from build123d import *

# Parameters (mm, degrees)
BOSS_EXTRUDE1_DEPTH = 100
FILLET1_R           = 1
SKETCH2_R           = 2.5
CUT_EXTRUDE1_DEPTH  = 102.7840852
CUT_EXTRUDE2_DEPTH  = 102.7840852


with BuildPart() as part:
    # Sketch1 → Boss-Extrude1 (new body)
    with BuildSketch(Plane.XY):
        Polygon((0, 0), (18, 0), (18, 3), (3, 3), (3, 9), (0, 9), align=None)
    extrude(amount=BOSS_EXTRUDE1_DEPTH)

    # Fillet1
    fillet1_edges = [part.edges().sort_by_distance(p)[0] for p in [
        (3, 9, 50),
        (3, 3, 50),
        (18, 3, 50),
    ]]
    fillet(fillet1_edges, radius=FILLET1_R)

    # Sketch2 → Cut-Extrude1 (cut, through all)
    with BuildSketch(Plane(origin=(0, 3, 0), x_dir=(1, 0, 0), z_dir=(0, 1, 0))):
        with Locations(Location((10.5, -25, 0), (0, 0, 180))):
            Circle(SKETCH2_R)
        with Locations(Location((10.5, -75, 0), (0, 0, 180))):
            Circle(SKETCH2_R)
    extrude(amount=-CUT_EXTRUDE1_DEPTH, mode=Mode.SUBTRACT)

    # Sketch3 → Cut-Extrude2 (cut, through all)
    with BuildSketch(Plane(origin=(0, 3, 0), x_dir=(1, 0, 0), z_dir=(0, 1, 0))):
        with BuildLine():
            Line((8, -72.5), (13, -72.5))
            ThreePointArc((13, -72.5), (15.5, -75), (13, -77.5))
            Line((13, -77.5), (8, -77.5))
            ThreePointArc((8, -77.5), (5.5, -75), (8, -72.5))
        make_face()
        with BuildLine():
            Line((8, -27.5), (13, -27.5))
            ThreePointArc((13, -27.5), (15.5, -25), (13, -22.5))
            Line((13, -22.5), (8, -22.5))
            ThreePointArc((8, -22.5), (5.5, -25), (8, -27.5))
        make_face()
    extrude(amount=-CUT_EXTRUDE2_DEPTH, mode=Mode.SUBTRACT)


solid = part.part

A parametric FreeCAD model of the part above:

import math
import FreeCAD as App
import Part
import Sketcher

V = App.Vector


def edges_at(feature, points):
    """Names of the edges that pass closest to the given points."""
    edges = feature.Shape.Edges
    near = lambda p: min(range(len(edges)), key=lambda i: edges[i].distToShape(Part.Vertex(*p))[0])
    return sorted({f"Edge{near(p) + 1}" for p in points})

doc = App.newDocument("Part")
body = doc.addObject("PartDesign::Body", "Body")

# Sketch on XY plane
sketch1 = doc.addObject("Sketcher::SketchObject", "Sketch")
body.addObject(sketch1)
sketch1.AttachmentSupport = (doc.XY_Plane, [""])
sketch1.MapMode = "FlatFace"
sketch1.addGeometry([
    Part.LineSegment(V(0, 0, 0), V(18, 0, 0)),  # 0
    Part.LineSegment(V(18, 0, 0), V(18, 3, 0)),  # 1
    Part.LineSegment(V(18, 3, 0), V(3, 3, 0)),  # 2
    Part.LineSegment(V(3, 3, 0), V(3, 9, 0)),  # 3
    Part.LineSegment(V(3, 9, 0), V(0, 9, 0)),  # 4
    Part.LineSegment(V(0, 9, 0), V(0, 0, 0)),  # 5
], False)
sketch1.addConstraint([
    Sketcher.Constraint("Coincident", 0, 2, 1, 1),
    Sketcher.Constraint("Coincident", 1, 2, 2, 1),
    Sketcher.Constraint("Coincident", 2, 2, 3, 1),
    Sketcher.Constraint("Coincident", 3, 2, 4, 1),
    Sketcher.Constraint("Coincident", 4, 2, 5, 1),
    Sketcher.Constraint("Coincident", 5, 2, 0, 1),
    Sketcher.Constraint("Horizontal", 0),
    Sketcher.Constraint("Vertical", 1),
    Sketcher.Constraint("Horizontal", 2),
    Sketcher.Constraint("Vertical", 3),
    Sketcher.Constraint("Horizontal", 4),
    Sketcher.Constraint("Vertical", 5),
    Sketcher.Constraint("Coincident", 5, 2, -1, 1),
    Sketcher.Constraint("Equal", 4, 1),
    Sketcher.Constraint("DistanceX", 0, 1, 0, 2, 18.0),
    Sketcher.Constraint("DistanceX", 2, 2, 2, 1, 15.0),
    Sketcher.Constraint("DistanceY", 3, 1, 3, 2, 6.0),
])
pad1 = doc.addObject("PartDesign::Pad", "Pad")
body.addObject(pad1)
pad1.Profile = sketch1
pad1.Length = 100
doc.recompute()

fillet = doc.addObject("PartDesign::Fillet", "Fillet")
body.addObject(fillet)
fillet.Base = (pad1, edges_at(pad1, [(3, 9, 50), (3, 3, 50), (18, 3, 50)]))
fillet.Radius = 1

# Sketch on XZ plane
sketch2 = doc.addObject("Sketcher::SketchObject", "Sketch001")
body.addObject(sketch2)
sketch2.AttachmentSupport = (doc.XZ_Plane, [""])
sketch2.MapMode = "FlatFace"
sketch2.AttachmentOffset = App.Placement(V(0, 0, -3), App.Rotation())
sketch2.addGeometry([
    Part.Circle(V(10.5, 25, 0), V(0, 0, 1), 2.5),
    Part.Circle(V(10.5, 75, 0), V(0, 0, 1), 2.5),
], False)
sketch2.addConstraint([
    Sketcher.Constraint("Equal", 0, 1),
    Sketcher.Constraint("Vertical", 0, 3, 1, 3),
    Sketcher.Constraint("Diameter", 0, 5.0),
    Sketcher.Constraint("DistanceY", -1, 1, 0, 3, 25.0),
    Sketcher.Constraint("DistanceY", -1, 1, 1, 3, 75.0),
    Sketcher.Constraint("DistanceX", -1, 1, 0, 3, 10.5),
])
pocket1 = doc.addObject("PartDesign::Pocket", "Pocket")
body.addObject(pocket1)
pocket1.Profile = sketch2
pocket1.Type = "ThroughAll"
pocket1.Reversed = True

# Sketch on XZ plane
sketch3 = doc.addObject("Sketcher::SketchObject", "Sketch002")
body.addObject(sketch3)
sketch3.AttachmentSupport = (doc.XZ_Plane, [""])
sketch3.MapMode = "FlatFace"
sketch3.AttachmentOffset = App.Placement(V(0, 0, -3), App.Rotation())
sketch3.addGeometry([
    Part.LineSegment(V(13, 72.5, 0), V(8, 72.5, 0)),  # 0
    Part.ArcOfCircle(Part.Circle(V(8, 75, 0), V(0, 0, 1), 2.5), math.radians(90), math.radians(270)),  # 1
    Part.LineSegment(V(8, 77.5, 0), V(13, 77.5, 0)),  # 2
    Part.ArcOfCircle(Part.Circle(V(13, 75, 0), V(0, 0, 1), 2.5), math.radians(-90), math.radians(90)),  # 3
    Part.LineSegment(V(8, 27.5, 0), V(13, 27.5, 0)),  # 4
    Part.ArcOfCircle(Part.Circle(V(13, 25, 0), V(0, 0, 1), 2.5), math.radians(-90), math.radians(90)),  # 5
    Part.LineSegment(V(13, 22.5, 0), V(8, 22.5, 0)),  # 6
    Part.ArcOfCircle(Part.Circle(V(8, 25, 0), V(0, 0, 1), 2.5), math.radians(90), math.radians(270)),  # 7
], False)
sketch3.addConstraint([
    Sketcher.Constraint("Tangent", 0, 2, 1, 2),
    Sketcher.Constraint("Tangent", 1, 1, 2, 1),
    Sketcher.Constraint("Tangent", 2, 2, 3, 2),
    Sketcher.Constraint("Tangent", 3, 1, 0, 1),
    Sketcher.Constraint("Tangent", 4, 2, 5, 2),
    Sketcher.Constraint("Tangent", 5, 1, 6, 1),
    Sketcher.Constraint("Tangent", 6, 2, 7, 2),
    Sketcher.Constraint("Tangent", 7, 1, 4, 1),
    Sketcher.Constraint("Horizontal", 0),
    Sketcher.Constraint("Horizontal", 2),
    Sketcher.Constraint("Horizontal", 4),
    Sketcher.Constraint("Horizontal", 6),
    Sketcher.Constraint("Equal", 3, 5),
    Sketcher.Constraint("Vertical", 3, 3, 5, 3),
    Sketcher.Constraint("Vertical", 1, 3, 7, 3),
    Sketcher.Constraint("Radius", 1, 2.5),
    Sketcher.Constraint("DistanceX", 0, 2, 0, 1, 5.0),
    Sketcher.Constraint("DistanceX", -1, 1, 1, 3, 8.0),
    Sketcher.Constraint("DistanceY", -1, 1, 1, 3, 75.0),
    Sketcher.Constraint("DistanceY", -1, 1, 5, 3, 25.0),
])
pocket2 = doc.addObject("PartDesign::Pocket", "Pocket001")
body.addObject(pocket2)
pocket2.Profile = sketch3
pocket2.Type = "ThroughAll"
pocket2.Reversed = True

doc.recompute()
